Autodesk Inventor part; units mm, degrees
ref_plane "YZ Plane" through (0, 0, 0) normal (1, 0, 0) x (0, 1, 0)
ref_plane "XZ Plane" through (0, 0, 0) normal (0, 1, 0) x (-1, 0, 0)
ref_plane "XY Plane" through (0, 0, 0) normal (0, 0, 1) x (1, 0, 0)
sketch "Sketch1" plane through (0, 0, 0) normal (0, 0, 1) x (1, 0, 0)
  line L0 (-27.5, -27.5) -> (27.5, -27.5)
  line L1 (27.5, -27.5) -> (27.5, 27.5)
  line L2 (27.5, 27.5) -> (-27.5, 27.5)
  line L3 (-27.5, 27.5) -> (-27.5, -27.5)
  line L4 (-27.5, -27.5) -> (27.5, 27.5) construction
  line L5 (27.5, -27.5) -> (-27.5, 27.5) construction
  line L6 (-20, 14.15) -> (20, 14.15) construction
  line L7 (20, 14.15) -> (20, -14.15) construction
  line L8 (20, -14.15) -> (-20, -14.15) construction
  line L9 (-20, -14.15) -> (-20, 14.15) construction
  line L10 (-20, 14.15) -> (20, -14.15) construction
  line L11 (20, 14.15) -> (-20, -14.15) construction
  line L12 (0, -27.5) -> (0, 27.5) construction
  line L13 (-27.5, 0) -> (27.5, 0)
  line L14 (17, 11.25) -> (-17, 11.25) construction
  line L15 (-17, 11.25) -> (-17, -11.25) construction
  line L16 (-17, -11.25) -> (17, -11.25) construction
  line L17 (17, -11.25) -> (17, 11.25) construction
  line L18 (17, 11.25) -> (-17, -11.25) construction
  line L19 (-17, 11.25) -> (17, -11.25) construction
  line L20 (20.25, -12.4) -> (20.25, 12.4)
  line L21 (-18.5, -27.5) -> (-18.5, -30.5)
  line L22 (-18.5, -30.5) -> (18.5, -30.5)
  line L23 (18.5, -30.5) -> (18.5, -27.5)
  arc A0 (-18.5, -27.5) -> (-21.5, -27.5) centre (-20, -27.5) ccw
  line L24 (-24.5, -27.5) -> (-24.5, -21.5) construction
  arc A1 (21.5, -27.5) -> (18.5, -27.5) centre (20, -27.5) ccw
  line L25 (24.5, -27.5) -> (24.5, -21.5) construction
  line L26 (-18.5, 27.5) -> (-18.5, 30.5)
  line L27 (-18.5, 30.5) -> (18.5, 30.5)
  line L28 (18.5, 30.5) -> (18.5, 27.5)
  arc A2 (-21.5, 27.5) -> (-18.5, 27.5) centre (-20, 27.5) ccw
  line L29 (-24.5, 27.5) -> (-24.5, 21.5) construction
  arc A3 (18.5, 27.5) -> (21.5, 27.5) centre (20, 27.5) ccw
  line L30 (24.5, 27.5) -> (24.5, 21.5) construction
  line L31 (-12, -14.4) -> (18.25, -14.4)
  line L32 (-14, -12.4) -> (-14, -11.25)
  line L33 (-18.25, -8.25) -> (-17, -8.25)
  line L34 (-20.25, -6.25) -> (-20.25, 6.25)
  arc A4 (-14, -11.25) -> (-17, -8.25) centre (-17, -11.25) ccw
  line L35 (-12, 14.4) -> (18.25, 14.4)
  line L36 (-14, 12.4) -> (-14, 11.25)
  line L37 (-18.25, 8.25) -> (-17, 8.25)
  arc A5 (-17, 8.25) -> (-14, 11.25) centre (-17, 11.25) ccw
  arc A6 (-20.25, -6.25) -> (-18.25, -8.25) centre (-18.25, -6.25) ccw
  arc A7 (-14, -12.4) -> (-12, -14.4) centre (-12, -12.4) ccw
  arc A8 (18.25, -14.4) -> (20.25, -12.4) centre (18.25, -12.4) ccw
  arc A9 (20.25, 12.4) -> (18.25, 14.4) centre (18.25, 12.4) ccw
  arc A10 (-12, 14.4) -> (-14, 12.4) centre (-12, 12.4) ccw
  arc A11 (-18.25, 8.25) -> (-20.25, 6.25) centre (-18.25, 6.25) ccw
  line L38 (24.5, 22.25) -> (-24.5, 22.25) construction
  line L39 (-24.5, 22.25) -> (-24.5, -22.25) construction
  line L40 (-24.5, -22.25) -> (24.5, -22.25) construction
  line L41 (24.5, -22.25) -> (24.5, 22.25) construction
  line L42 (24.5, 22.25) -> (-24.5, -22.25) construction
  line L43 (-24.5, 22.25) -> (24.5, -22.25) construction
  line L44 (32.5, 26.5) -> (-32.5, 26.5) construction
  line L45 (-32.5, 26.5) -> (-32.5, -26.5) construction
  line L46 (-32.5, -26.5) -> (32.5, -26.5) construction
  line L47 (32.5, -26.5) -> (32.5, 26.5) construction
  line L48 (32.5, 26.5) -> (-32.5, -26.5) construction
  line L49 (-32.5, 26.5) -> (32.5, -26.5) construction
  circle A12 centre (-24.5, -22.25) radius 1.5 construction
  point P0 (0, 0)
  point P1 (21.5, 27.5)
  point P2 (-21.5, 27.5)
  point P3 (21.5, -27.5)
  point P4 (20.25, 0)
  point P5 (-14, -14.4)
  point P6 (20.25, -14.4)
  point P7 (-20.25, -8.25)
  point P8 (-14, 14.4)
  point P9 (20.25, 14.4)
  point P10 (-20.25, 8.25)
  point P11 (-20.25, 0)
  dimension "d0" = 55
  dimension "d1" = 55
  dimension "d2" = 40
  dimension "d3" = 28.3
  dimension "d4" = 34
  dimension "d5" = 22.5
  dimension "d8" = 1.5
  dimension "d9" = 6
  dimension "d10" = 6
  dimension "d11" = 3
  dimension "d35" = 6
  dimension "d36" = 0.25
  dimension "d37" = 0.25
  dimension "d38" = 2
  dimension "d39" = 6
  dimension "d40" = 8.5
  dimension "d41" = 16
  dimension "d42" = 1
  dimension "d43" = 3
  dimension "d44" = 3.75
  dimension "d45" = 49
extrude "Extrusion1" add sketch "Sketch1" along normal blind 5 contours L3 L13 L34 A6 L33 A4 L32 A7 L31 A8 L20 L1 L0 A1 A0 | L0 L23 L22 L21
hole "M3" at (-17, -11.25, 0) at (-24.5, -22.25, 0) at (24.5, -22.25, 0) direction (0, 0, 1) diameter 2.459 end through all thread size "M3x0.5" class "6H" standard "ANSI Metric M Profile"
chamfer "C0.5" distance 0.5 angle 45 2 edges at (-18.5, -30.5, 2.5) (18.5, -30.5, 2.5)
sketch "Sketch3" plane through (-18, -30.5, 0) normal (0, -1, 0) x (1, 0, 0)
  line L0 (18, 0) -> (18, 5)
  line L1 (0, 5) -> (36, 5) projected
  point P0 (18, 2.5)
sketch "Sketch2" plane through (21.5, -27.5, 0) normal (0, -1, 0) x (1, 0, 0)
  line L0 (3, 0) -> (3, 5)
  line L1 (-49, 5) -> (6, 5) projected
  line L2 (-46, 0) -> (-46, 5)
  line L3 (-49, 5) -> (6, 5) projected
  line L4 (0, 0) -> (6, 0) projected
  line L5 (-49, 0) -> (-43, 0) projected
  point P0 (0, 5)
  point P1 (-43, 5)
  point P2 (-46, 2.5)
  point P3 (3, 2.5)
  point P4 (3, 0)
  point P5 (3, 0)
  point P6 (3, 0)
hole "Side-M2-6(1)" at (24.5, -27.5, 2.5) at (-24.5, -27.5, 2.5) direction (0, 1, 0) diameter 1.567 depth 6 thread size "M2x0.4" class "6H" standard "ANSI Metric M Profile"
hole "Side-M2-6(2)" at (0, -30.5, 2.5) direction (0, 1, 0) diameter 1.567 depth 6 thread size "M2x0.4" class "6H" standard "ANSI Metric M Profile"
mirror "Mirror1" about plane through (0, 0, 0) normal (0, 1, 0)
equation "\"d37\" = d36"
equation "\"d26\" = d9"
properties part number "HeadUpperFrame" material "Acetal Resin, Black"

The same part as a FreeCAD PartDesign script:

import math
import FreeCAD as App
import Part
import Sketcher

V = App.Vector
Q = App.Units.Quantity


def edges_at(feature, points):
    """Names of the edges that pass closest to the given points."""
    edges = feature.Shape.Edges
    near = lambda p: min(range(len(edges)), key=lambda i: edges[i].distToShape(Part.Vertex(*p))[0])
    return sorted({f"Edge{near(p) + 1}" for p in points})

doc = App.newDocument("Part")
body = doc.addObject("PartDesign::Body", "Body")

# Sketch on XY plane
sketch1 = body.newObject("Sketcher::SketchObject", "Sketch")
sketch1.AttachmentSupport = (doc.getObject("XY_Plane"), [""])
sketch1.MapMode = "FlatFace"
sketch1.addGeometry([
    Part.LineSegment(V(-27.5, 0, 0), V(-27.5, -27.5, 0)),  # 0
    Part.LineSegment(V(-27.5, -27.5, 0), V(-21.5, -27.5, 0)),  # 1
    Part.ArcOfCircle(Part.Circle(V(-20, -27.5, 0), V(0, 0, 1), 1.5), math.radians(0), math.radians(180)),  # 2
    Part.LineSegment(V(-18.5, -27.5, 0), V(-18.5, -30.5, 0)),  # 3
    Part.LineSegment(V(-18.5, -30.5, 0), V(18.5, -30.5, 0)),  # 4
    Part.LineSegment(V(18.5, -30.5, 0), V(18.5, -27.5, 0)),  # 5
    Part.ArcOfCircle(Part.Circle(V(20, -27.5, 0), V(0, 0, 1), 1.5), math.radians(0), math.radians(180)),  # 6
    Part.LineSegment(V(21.5, -27.5, 0), V(27.5, -27.5, 0)),  # 7
    Part.LineSegment(V(27.5, -27.5, 0), V(27.5, 0, 0)),  # 8
    Part.LineSegment(V(27.5, 0, 0), V(20.2, 0, 0)),  # 9
    Part.LineSegment(V(20.2, 0, 0), V(20.2, -12.4, 0)),  # 10
    Part.ArcOfCircle(Part.Circle(V(18.2, -12.4, 0), V(0, 0, 1), 2), math.radians(-90), math.radians(0)),  # 11
    Part.LineSegment(V(18.2, -14.4, 0), V(-12, -14.4, 0)),  # 12
    Part.ArcOfCircle(Part.Circle(V(-12, -12.4, 0), V(0, 0, 1), 2), math.radians(180), math.radians(270)),  # 13
    Part.LineSegment(V(-14, -12.4, 0), V(-14, -11.2, 0)),  # 14
    Part.ArcOfCircle(Part.Circle(V(-17, -11.2, 0), V(0, 0, 1), 3), math.radians(0), math.radians(90)),  # 15
    Part.LineSegment(V(-17, -8.2, 0), V(-18.2, -8.2, 0)),  # 16
    Part.ArcOfCircle(Part.Circle(V(-18.2, -6.2, 0), V(0, 0, 1), 2), math.radians(180), math.radians(270)),  # 17
    Part.LineSegment(V(-20.2, -6.2, 0), V(-20.2, 0, 0)),  # 18
    Part.LineSegment(V(-20.2, 0, 0), V(-27.5, 0, 0)),  # 19
], False)
sketch1.addConstraint([
    Sketcher.Constraint("Coincident", 0, 2, 1, 1),
    Sketcher.Constraint("Coincident", 1, 2, 2, 2),
    Sketcher.Constraint("Tangent", 2, 1, 3, 1),
    Sketcher.Constraint("Coincident", 3, 2, 4, 1),
    Sketcher.Constraint("Coincident", 4, 2, 5, 1),
    Sketcher.Constraint("Tangent", 5, 2, 6, 2),
    Sketcher.Constraint("Coincident", 6, 1, 7, 1),
    Sketcher.Constraint("Coincident", 7, 2, 8, 1),
    Sketcher.Constraint("Coincident", 8, 2, 9, 1),
    Sketcher.Constraint("Coincident", 9, 2, 10, 1),
    Sketcher.Constraint("Tangent", 10, 2, 11, 2),
    Sketcher.Constraint("Tangent", 11, 1, 12, 1),
    Sketcher.Constraint("Tangent", 12, 2, 13, 2),
    Sketcher.Constraint("Tangent", 13, 1, 14, 1),
    Sketcher.Constraint("Tangent", 14, 2, 15, 1),
    Sketcher.Constraint("Tangent", 15, 2, 16, 1),
    Sketcher.Constraint("Tangent", 16, 2, 17, 2),
    Sketcher.Constraint("Tangent", 17, 1, 18, 1),
    Sketcher.Constraint("Coincident", 18, 2, 19, 1),
    Sketcher.Constraint("Coincident", 19, 2, 0, 1),
    Sketcher.Constraint("Vertical", 0),
    Sketcher.Constraint("Horizontal", 1),
    Sketcher.Constraint("Vertical", 3),
    Sketcher.Constraint("Horizontal", 4),
    Sketcher.Constraint("Vertical", 5),
    Sketcher.Constraint("Horizontal", 7),
    Sketcher.Constraint("Vertical", 8),
    Sketcher.Constraint("Horizontal", 9),
    Sketcher.Constraint("Vertical", 10),
    Sketcher.Constraint("Horizontal", 12),
    Sketcher.Constraint("Vertical", 14),
    Sketcher.Constraint("Horizontal", 16),
    Sketcher.Constraint("Vertical", 18),
    Sketcher.Constraint("Horizontal", 19),
    Sketcher.Constraint("Equal", 2, 6),
    Sketcher.Constraint("Equal", 11, 13),
    Sketcher.Constraint("Equal", 13, 17),
    Sketcher.Constraint("Symmetric", 9, 2, 18, 2, -1, 1),
    Sketcher.Constraint("Symmetric", 2, 3, 6, 3, -2),
    Sketcher.Constraint("Symmetric", 0, 2, 7, 2, -2),
    Sketcher.Constraint("PointOnObject", 8, 2, -1),
    Sketcher.Constraint("Horizontal", 6, 3, 0, 2),
    Sketcher.Constraint("Radius", 11, Q("2 mm")),
    Sketcher.Constraint("Radius", 15, Q("3 mm")),
    Sketcher.Constraint("Radius", 2, Q("1.5 mm")),
    Sketcher.Constraint("DistanceX", 1, 1, 1, 2, Q("6 mm")),
    Sketcher.Constraint("DistanceY", 3, 2, 3, 1, Q("3 mm")),
    Sketcher.Constraint("DistanceX", 2, 3, 6, 3, Q("40 mm")),
    Sketcher.Constraint("DistanceX", 2, 3, 15, 3, Q("3 mm")),
    Sketcher.Constraint("DistanceX", 11, 3, 4, 2, Q("0.25 mm")),
    Sketcher.Constraint("DistanceY", 0, 2, 0, 1, Q("27.5 mm")),
    Sketcher.Constraint("DistanceY", 10, 2, 10, 1, Q("12.4 mm")),
    Sketcher.Constraint("DistanceY", 14, 1, 14, 2, Q("1.15 mm")),
])
pad1 = body.newObject("PartDesign::Pad", "Pad")
pad1.Profile = sketch1
pad1.Length = 5

# Sketch on XY plane
sketch2 = body.newObject("Sketcher::SketchObject", "Sketch001")
sketch2.AttachmentSupport = (doc.getObject("XY_Plane"), [""])
sketch2.MapMode = "FlatFace"
sketch2.addGeometry([
    Part.Circle(V(-17, -11.2, 0), V(0, 0, 1), 1.2),
    Part.Circle(V(-24.5, -22.2, 0), V(0, 0, 1), 1.2),
    Part.Circle(V(24.5, -22.2, 0), V(0, 0, 1), 1.2),
], False)
sketch2.addConstraint([
    Sketcher.Constraint("Equal", 0, 1),
    Sketcher.Constraint("Equal", 1, 2),
    Sketcher.Constraint("Symmetric", 1, 3, 2, 3, -2),
    Sketcher.Constraint("Diameter", 0, Q("2.459 mm")),
    Sketcher.Constraint("DistanceX", 0, 3, -1, 1, Q("17 mm")),
    Sketcher.Constraint("DistanceY", 1, 3, 0, 3, Q("11 mm")),
    Sketcher.Constraint("DistanceX", 1, 3, 2, 3, Q("49 mm")),
    Sketcher.Constraint("DistanceY", 0, 3, -1, 1, Q("11.25 mm")),
])
doc.recompute()
hole = body.newObject("PartDesign::Hole", "Hole")
hole.Profile = sketch2
hole.ThreadType = "None"
hole.Diameter = 2.459
hole.DepthType = "ThroughAll"
hole.Reversed = True
doc.recompute()

chamfer = body.newObject("PartDesign::Chamfer", "Chamfer")
chamfer.Base = (hole, edges_at(hole, [(-18.5, -30.5, 2.5), (18.5, -30.5, 2.5)]))
chamfer.Size = 0.5

# Sketch on XZ plane
sketch3 = body.newObject("Sketcher::SketchObject", "Sketch002")
sketch3.AttachmentSupport = (doc.getObject("XZ_Plane"), [""])
sketch3.MapMode = "FlatFace"
sketch3.AttachmentOffset = App.Placement(V(0, 0, 27.5), App.Rotation())
sketch3.addGeometry([
    Part.Circle(V(24.5, 2.5, 0), V(0, 0, 1), 0.8),
    Part.Circle(V(-24.5, 2.5, 0), V(0, 0, 1), 0.8),
], False)
sketch3.addConstraint([
    Sketcher.Constraint("Equal", 0, 1),
    Sketcher.Constraint("Symmetric", 0, 3, 1, 3, -2),
    Sketcher.Constraint("Diameter", 0, Q("1.567 mm")),
    Sketcher.Constraint("DistanceX", 1, 3, 0, 3, Q("49 mm")),
    Sketcher.Constraint("DistanceY", -1, 1, 0, 3, Q("2.5 mm")),
])
doc.recompute()
hole2 = body.newObject("PartDesign::Hole", "Hole001")
hole2.Profile = sketch3
hole2.ThreadType = "None"
hole2.Diameter = 1.567
hole2.DepthType = "Dimension"
hole2.Depth = 6
hole2.DrillPoint = "Flat"

# Sketch on XZ plane
sketch4 = body.newObject("Sketcher::SketchObject", "Sketch003")
sketch4.AttachmentSupport = (doc.getObject("XZ_Plane"), [""])
sketch4.MapMode = "FlatFace"
sketch4.AttachmentOffset = App.Placement(V(0, 0, 30.5), App.Rotation())
sketch4.addGeometry(Part.Circle(V(0, 2.5, 0), V(0, 0, 1), 0.8), False)
sketch4.addConstraint([
    Sketcher.Constraint("PointOnObject", 0, 3, -2),
    Sketcher.Constraint("Diameter", 0, Q("1.567 mm")),
    Sketcher.Constraint("DistanceY", -1, 1, 0, 3, Q("2.5 mm")),
])
doc.recompute()
hole3 = body.newObject("PartDesign::Hole", "Hole002")
hole3.Profile = sketch4
hole3.ThreadType = "None"
hole3.Diameter = 1.567
hole3.DepthType = "Dimension"
hole3.Depth = 6
hole3.DrillPoint = "Flat"
doc.recompute()

mirrored = body.newObject("PartDesign::Mirrored", "Mirrored")
mirrored.TransformMode = "Transform body"
mirrored.MirrorPlane = (doc.getObject("XZ_Plane"), [""])
body.Tip = mirrored

doc.recompute()
